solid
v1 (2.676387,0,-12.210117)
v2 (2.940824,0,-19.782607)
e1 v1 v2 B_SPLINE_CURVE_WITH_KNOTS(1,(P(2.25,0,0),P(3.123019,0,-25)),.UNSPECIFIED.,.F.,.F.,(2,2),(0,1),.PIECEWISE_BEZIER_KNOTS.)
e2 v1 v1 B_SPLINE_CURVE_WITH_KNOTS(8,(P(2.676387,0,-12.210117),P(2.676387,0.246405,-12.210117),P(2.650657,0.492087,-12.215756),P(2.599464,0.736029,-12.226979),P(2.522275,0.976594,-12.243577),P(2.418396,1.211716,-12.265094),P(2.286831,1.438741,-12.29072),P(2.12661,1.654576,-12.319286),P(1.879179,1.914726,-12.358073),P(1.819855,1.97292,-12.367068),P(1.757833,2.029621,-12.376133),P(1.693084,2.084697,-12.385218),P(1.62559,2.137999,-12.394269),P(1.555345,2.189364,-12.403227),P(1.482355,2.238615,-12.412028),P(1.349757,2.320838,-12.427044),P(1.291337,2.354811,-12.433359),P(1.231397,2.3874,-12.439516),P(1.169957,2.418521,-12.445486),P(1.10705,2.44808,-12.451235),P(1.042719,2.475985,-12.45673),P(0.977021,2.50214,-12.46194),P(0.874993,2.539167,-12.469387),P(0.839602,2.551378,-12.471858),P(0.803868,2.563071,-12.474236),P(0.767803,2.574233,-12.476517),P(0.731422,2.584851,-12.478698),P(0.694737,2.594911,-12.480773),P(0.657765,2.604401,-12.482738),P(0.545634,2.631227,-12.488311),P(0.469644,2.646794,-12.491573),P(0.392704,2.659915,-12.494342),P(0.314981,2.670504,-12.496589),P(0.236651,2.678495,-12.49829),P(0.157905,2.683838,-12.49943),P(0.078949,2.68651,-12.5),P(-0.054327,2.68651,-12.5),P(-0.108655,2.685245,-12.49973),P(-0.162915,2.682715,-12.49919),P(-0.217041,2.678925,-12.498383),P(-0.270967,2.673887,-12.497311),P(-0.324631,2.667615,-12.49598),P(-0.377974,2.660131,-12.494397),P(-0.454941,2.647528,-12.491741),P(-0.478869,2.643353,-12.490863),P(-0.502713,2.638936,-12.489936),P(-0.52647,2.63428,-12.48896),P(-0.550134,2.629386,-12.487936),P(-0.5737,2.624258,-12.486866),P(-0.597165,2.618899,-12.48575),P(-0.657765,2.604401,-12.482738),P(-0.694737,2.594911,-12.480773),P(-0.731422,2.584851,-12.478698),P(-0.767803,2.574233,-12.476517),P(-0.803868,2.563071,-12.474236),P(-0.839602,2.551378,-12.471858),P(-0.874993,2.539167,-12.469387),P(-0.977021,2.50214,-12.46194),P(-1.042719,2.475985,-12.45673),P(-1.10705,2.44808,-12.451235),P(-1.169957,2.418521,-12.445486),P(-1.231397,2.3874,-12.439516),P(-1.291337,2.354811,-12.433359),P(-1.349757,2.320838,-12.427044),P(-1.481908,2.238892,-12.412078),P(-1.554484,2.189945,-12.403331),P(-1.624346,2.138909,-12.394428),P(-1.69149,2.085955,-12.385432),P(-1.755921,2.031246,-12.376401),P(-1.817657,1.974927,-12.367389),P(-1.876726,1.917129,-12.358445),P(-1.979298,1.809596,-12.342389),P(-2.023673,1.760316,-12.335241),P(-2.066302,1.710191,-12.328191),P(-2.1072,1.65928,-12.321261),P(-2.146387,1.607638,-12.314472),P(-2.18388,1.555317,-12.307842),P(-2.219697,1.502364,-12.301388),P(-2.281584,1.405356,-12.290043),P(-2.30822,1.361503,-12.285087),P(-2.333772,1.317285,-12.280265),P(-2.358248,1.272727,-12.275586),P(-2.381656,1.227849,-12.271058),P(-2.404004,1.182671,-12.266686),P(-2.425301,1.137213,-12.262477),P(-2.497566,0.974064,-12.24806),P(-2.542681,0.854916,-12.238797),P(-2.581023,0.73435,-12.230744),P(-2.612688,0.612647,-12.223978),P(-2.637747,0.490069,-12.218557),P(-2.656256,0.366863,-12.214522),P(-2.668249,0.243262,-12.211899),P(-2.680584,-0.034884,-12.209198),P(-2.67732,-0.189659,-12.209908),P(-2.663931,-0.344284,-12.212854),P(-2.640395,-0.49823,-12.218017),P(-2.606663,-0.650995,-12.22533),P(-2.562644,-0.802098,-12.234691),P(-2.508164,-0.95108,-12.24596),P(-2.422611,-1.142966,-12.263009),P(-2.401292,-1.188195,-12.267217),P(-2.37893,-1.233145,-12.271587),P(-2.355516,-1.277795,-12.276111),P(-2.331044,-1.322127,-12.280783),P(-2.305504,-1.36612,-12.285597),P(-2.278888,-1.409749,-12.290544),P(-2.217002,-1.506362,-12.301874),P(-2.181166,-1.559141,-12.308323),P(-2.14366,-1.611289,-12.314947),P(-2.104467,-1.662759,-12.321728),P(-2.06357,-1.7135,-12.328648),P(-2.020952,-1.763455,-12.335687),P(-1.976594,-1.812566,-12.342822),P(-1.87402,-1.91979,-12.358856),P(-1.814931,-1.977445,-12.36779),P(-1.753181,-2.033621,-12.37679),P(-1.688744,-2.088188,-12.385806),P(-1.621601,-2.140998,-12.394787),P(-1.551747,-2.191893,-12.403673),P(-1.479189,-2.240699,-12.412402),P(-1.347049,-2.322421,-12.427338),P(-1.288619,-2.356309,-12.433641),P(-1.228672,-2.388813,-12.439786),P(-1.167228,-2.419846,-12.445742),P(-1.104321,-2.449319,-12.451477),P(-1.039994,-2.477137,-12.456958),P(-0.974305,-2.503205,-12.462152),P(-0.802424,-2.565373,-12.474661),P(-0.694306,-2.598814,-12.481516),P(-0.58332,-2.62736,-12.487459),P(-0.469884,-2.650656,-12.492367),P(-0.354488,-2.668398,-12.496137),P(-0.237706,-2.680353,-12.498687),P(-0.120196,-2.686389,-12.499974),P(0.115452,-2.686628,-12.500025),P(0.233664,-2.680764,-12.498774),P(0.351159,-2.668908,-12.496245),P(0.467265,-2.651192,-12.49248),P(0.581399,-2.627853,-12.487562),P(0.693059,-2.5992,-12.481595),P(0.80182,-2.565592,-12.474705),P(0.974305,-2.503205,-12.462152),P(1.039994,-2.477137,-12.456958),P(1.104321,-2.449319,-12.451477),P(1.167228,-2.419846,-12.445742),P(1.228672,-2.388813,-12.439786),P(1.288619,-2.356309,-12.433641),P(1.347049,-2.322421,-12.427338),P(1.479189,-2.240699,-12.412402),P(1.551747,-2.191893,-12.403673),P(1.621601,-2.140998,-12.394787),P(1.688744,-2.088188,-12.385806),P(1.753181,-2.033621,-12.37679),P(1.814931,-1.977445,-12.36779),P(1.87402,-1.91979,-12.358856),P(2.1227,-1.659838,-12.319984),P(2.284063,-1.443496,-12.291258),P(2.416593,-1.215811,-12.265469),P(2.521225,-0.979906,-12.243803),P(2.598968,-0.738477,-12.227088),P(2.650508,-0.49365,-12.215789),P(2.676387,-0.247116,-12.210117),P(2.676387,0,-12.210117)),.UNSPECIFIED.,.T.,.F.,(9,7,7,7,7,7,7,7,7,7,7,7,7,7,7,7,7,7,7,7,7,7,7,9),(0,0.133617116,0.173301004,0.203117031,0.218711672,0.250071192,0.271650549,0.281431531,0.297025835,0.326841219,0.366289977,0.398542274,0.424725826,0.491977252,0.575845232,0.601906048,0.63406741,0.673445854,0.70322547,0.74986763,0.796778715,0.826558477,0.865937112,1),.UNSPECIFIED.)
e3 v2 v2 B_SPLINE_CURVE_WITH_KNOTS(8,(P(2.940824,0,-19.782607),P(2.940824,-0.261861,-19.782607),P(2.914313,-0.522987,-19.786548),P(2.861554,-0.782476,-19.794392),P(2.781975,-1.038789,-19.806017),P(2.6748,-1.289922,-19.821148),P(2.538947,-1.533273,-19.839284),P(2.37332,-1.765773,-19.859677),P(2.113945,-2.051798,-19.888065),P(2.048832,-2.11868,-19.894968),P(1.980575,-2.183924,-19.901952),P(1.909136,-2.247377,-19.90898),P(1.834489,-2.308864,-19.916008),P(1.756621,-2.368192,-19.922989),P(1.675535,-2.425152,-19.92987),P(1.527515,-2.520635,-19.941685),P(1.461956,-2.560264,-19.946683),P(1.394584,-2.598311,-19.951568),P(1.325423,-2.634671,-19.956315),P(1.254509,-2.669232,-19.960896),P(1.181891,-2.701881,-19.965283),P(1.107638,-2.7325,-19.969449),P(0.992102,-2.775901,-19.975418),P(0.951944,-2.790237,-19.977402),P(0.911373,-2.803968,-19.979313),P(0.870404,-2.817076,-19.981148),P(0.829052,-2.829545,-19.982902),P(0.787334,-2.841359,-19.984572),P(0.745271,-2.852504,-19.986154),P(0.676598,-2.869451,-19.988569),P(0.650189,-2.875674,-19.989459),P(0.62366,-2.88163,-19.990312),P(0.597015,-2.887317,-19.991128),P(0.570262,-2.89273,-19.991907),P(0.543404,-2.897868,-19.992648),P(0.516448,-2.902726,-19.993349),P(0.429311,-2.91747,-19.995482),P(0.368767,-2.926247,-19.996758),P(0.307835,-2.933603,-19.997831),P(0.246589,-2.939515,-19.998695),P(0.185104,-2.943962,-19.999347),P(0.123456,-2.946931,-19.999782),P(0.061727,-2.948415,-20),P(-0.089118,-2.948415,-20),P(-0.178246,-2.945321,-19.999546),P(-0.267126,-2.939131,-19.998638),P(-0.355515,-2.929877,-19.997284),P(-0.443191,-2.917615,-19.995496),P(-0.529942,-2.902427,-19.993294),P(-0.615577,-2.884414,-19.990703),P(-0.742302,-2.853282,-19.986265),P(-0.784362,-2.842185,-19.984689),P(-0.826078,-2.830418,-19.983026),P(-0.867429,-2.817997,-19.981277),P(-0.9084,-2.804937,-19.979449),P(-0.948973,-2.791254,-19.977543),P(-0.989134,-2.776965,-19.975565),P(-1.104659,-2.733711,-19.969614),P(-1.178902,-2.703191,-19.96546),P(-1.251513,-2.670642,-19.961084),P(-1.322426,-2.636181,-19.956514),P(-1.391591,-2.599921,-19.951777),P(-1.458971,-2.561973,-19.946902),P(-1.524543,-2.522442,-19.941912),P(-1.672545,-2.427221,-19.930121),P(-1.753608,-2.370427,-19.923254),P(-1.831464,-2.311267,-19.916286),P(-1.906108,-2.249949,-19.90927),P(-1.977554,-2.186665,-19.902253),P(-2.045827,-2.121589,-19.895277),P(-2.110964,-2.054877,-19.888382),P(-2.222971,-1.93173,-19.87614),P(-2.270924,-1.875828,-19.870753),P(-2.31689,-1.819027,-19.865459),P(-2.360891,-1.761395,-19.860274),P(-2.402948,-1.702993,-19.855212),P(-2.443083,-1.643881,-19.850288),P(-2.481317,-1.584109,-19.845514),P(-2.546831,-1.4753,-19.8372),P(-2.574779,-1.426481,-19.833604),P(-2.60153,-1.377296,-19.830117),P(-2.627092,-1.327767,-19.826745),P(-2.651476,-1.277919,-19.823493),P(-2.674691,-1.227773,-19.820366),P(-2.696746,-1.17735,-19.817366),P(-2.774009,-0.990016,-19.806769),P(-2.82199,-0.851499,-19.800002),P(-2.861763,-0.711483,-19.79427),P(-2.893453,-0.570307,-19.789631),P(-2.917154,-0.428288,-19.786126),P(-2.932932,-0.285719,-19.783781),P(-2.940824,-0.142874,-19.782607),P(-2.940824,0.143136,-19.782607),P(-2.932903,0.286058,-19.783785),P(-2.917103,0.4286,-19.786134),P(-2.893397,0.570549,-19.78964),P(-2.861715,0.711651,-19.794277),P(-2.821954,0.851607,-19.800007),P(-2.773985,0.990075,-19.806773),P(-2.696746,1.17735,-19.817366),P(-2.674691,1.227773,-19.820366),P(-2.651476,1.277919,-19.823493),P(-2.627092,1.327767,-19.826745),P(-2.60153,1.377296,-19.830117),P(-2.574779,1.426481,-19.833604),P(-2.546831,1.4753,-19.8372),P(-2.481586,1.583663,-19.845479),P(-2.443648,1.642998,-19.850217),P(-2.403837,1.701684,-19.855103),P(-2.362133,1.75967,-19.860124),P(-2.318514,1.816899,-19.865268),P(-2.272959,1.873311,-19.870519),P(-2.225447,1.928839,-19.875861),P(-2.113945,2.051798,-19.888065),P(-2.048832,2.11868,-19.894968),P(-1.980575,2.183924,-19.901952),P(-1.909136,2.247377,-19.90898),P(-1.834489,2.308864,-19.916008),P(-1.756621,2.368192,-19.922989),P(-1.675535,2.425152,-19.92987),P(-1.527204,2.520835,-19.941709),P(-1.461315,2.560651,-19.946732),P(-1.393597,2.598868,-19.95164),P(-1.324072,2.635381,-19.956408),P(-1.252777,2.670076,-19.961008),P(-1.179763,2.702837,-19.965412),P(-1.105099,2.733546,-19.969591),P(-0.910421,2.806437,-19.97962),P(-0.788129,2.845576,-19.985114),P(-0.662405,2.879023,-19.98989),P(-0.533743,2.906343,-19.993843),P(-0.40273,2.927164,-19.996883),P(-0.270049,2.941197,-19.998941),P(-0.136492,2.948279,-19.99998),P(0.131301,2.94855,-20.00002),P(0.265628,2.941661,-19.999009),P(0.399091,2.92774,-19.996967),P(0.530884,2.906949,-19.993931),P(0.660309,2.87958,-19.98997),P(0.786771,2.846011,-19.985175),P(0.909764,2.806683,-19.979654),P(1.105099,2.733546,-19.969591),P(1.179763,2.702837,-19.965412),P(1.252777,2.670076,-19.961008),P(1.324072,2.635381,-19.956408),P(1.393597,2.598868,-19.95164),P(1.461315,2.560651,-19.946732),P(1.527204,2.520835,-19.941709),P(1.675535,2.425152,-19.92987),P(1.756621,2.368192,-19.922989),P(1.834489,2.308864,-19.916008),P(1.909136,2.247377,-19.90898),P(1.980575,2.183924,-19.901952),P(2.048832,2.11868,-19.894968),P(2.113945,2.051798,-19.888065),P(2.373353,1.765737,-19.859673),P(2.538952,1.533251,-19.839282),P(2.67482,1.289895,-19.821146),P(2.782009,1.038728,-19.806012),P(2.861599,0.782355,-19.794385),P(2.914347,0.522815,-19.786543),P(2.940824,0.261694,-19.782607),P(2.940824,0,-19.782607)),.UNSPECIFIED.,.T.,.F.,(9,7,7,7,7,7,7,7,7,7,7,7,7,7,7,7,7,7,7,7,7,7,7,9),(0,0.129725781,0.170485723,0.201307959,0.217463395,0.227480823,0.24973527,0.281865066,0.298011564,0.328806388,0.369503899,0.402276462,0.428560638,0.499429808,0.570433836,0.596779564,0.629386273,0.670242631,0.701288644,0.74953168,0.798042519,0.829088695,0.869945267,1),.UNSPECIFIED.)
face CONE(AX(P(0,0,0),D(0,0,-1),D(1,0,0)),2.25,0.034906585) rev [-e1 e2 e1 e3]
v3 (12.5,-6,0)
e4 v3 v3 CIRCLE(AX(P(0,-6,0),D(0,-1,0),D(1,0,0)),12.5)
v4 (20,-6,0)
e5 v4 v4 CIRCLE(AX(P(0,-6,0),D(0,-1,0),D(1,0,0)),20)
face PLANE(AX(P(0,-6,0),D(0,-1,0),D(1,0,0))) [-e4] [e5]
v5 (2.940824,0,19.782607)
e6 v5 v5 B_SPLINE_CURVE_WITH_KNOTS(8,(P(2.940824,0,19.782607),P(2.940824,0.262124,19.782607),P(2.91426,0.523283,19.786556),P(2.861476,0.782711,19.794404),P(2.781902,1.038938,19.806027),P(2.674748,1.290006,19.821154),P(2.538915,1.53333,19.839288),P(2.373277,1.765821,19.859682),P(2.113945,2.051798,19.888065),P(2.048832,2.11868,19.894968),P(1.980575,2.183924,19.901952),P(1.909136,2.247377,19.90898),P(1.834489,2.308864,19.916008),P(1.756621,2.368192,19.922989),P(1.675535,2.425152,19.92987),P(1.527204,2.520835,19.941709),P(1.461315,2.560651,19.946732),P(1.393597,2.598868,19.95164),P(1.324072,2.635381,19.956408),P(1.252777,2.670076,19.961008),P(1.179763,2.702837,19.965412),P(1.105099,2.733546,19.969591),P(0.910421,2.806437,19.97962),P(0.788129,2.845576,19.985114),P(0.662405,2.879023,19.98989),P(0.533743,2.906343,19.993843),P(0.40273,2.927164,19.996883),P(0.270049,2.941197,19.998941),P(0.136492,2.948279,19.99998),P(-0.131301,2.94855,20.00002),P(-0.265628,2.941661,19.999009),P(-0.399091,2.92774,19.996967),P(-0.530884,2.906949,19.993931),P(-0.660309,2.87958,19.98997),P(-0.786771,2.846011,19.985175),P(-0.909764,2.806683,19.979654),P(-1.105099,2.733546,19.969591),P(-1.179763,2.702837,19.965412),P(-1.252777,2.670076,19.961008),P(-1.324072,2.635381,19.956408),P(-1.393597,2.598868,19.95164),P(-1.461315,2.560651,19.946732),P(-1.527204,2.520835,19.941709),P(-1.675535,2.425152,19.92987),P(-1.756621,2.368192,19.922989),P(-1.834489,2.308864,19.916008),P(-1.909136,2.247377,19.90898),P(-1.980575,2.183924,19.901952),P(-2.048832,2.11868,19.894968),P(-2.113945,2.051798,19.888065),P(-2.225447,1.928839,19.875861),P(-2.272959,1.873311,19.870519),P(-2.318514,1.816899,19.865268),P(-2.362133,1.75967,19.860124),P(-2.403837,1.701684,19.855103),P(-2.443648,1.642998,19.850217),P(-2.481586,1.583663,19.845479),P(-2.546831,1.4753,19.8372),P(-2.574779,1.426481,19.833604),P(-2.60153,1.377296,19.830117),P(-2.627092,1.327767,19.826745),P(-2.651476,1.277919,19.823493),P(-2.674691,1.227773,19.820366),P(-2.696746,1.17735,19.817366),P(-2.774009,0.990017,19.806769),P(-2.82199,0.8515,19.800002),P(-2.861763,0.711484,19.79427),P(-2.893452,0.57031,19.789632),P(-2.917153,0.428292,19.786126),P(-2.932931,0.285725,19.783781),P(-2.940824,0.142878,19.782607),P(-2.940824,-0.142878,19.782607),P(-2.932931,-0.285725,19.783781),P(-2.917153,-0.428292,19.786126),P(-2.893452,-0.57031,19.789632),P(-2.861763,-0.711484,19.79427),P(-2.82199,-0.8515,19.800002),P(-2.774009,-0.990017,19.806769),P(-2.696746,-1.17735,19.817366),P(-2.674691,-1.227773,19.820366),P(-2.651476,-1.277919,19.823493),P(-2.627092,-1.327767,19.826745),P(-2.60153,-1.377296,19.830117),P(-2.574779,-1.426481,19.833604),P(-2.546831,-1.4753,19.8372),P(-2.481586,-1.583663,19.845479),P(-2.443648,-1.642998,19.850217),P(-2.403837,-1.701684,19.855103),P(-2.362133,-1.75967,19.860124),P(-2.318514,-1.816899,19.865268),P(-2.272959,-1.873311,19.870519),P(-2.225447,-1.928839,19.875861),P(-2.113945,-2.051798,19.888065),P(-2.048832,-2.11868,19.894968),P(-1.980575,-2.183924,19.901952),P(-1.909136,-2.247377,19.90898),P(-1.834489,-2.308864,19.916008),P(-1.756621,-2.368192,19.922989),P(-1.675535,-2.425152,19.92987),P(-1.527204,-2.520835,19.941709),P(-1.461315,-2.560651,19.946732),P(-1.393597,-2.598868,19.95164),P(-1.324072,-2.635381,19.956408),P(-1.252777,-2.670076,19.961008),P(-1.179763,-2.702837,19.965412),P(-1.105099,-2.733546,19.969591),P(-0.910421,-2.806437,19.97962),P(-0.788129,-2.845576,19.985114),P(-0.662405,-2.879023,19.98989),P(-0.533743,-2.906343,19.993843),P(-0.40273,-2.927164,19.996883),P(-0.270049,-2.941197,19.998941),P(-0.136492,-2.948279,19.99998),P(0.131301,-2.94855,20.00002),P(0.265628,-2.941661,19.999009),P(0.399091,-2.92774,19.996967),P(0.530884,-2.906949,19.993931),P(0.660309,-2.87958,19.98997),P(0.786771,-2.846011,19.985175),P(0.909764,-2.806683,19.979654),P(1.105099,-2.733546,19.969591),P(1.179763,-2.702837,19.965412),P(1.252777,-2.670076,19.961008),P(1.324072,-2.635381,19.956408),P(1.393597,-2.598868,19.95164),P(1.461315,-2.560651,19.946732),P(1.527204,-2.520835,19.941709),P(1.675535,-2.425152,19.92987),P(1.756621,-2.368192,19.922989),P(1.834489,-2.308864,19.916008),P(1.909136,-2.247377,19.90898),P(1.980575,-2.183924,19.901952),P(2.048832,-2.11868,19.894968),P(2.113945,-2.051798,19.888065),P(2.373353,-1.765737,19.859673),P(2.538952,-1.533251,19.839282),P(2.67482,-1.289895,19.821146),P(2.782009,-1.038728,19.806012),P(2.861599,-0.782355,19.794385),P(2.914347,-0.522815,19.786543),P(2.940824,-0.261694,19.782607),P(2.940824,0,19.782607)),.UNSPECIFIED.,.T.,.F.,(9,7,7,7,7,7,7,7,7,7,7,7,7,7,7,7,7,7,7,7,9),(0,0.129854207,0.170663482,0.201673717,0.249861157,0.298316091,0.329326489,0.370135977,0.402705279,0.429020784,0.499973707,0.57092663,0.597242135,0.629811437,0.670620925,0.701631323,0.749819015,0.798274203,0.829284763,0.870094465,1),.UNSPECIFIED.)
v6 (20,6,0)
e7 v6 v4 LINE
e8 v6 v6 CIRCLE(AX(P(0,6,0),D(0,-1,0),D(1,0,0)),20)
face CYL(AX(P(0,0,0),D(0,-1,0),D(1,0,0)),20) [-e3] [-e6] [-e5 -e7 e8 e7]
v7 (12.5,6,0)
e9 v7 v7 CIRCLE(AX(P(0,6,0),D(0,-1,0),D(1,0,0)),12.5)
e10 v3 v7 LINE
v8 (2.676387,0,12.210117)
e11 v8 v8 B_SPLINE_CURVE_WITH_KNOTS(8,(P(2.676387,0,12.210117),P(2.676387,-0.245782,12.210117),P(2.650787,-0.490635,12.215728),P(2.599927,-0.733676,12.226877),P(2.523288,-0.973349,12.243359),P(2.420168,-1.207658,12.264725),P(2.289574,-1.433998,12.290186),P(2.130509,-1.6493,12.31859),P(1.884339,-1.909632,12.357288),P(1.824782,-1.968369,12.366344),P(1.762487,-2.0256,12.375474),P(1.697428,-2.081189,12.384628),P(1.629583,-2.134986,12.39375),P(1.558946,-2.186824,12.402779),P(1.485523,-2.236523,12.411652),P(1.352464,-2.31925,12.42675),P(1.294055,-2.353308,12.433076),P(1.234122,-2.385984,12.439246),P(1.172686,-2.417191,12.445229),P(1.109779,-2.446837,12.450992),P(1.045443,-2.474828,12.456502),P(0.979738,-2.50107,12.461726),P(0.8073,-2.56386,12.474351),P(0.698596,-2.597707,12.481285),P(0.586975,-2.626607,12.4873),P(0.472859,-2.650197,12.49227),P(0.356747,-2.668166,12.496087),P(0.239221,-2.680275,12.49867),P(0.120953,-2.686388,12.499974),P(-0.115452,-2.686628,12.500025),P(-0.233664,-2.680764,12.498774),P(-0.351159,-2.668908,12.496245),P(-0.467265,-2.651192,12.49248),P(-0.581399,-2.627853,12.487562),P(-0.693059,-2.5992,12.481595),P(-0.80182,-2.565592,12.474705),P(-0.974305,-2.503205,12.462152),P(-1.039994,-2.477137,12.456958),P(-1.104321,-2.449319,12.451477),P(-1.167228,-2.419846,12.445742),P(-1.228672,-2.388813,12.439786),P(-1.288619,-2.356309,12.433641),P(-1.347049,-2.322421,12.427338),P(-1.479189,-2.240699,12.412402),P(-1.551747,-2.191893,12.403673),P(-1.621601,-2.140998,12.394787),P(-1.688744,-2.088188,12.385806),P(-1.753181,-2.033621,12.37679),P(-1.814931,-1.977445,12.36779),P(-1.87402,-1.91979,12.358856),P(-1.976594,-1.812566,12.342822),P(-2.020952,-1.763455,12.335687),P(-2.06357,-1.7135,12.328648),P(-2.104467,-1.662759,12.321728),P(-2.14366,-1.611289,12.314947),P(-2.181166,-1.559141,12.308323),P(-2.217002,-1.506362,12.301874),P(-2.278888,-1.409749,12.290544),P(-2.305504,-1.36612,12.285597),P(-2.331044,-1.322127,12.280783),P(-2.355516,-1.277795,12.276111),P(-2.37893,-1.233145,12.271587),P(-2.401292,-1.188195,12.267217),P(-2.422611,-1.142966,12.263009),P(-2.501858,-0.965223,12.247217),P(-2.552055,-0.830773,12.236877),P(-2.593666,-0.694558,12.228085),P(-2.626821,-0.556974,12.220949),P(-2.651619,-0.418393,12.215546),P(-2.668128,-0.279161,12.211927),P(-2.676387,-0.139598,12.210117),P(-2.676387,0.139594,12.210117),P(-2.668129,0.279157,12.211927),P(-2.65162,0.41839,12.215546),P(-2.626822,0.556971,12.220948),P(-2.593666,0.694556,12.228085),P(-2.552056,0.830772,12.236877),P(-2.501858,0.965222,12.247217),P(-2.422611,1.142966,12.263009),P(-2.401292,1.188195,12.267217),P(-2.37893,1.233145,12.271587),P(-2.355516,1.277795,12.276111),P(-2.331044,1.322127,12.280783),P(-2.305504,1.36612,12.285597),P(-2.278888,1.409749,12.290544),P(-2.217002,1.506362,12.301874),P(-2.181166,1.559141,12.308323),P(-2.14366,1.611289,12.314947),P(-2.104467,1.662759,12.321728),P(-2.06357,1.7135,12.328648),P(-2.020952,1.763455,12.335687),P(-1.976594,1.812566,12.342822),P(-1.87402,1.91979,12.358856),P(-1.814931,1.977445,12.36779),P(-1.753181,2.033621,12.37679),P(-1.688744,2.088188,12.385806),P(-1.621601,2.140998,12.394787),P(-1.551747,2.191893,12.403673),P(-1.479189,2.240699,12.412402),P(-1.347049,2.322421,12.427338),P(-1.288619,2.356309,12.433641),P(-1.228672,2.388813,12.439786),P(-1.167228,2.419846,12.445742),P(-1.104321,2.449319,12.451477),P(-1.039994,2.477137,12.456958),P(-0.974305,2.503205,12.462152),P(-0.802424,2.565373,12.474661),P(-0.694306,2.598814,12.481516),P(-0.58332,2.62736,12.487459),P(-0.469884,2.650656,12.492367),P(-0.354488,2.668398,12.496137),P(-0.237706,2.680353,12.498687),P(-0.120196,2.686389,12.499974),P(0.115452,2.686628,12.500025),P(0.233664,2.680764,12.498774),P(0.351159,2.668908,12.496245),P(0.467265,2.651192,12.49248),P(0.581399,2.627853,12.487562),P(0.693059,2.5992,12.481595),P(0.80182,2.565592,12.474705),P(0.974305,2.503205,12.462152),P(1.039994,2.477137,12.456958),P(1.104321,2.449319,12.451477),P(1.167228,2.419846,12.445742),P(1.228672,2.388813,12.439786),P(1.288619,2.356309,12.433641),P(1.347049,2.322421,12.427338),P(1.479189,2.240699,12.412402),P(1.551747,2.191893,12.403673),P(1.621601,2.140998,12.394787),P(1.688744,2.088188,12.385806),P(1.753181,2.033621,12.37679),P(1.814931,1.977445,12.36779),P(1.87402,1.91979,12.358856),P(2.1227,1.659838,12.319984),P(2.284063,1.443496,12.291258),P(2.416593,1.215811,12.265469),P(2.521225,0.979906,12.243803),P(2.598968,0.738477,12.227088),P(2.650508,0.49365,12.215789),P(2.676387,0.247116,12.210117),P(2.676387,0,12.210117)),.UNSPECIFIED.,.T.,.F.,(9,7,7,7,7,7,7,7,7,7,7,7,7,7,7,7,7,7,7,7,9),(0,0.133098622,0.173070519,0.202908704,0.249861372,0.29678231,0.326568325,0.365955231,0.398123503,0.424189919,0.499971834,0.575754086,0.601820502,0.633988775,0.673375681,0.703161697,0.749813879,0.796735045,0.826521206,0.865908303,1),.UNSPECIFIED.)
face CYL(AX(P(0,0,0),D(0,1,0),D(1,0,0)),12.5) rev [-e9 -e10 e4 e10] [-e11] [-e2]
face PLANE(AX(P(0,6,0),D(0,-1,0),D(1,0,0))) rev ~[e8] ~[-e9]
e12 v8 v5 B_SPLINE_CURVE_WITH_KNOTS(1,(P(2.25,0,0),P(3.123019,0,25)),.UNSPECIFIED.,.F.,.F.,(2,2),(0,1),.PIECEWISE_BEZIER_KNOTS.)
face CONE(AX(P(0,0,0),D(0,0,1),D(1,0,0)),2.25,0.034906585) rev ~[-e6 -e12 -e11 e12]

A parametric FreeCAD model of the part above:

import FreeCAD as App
import Part
import Sketcher

doc = App.newDocument("Part")
body = doc.addObject("PartDesign::Body", "Body")

sketch1 = body.newObject("Sketcher::SketchObject", "Sketch")
sketch1.AttachmentSupport = (doc.getObject("XZ_Plane"), [""])
sketch1.MapMode = "FlatFace"
sketch1.addGeometry([
    Part.Circle(App.Vector(0, 0, 0), App.Vector(0, 0, 1), 20),
    Part.Circle(App.Vector(0, 0, 0), App.Vector(0, 0, 1), 12),
], False)
sketch1.addConstraint([
    Sketcher.Constraint("Coincident", 0, 3, -1, 1),
    Sketcher.Constraint("Coincident", 1, 3, -1, 1),
    Sketcher.Constraint("Diameter", 0, 40.0),
    Sketcher.Constraint("Diameter", 1, 25.0),
])
pad1 = body.newObject("PartDesign::Pad", "Pad")
pad1.Profile = sketch1
pad1.Length = 12
pad1.Midplane = True

sketch2 = body.newObject("Sketcher::SketchObject", "Sketch001")
sketch2.AttachmentSupport = (doc.getObject("XY_Plane"), [""])
sketch2.MapMode = "FlatFace"
sketch2.addGeometry(Part.Circle(App.Vector(0, 0, 0), App.Vector(0, 0, 1), 2.2), False)
sketch2.addConstraint([
    Sketcher.Constraint("Coincident", 0, 3, -1, 1),
    Sketcher.Constraint("Diameter", 0, 4.5),
])
pocket1 = body.newObject("PartDesign::Pocket", "Pocket")
pocket1.Profile = sketch2
pocket1.Length = 50
pocket1.Midplane = True
pocket1.TaperAngle = 2

doc.recompute()
